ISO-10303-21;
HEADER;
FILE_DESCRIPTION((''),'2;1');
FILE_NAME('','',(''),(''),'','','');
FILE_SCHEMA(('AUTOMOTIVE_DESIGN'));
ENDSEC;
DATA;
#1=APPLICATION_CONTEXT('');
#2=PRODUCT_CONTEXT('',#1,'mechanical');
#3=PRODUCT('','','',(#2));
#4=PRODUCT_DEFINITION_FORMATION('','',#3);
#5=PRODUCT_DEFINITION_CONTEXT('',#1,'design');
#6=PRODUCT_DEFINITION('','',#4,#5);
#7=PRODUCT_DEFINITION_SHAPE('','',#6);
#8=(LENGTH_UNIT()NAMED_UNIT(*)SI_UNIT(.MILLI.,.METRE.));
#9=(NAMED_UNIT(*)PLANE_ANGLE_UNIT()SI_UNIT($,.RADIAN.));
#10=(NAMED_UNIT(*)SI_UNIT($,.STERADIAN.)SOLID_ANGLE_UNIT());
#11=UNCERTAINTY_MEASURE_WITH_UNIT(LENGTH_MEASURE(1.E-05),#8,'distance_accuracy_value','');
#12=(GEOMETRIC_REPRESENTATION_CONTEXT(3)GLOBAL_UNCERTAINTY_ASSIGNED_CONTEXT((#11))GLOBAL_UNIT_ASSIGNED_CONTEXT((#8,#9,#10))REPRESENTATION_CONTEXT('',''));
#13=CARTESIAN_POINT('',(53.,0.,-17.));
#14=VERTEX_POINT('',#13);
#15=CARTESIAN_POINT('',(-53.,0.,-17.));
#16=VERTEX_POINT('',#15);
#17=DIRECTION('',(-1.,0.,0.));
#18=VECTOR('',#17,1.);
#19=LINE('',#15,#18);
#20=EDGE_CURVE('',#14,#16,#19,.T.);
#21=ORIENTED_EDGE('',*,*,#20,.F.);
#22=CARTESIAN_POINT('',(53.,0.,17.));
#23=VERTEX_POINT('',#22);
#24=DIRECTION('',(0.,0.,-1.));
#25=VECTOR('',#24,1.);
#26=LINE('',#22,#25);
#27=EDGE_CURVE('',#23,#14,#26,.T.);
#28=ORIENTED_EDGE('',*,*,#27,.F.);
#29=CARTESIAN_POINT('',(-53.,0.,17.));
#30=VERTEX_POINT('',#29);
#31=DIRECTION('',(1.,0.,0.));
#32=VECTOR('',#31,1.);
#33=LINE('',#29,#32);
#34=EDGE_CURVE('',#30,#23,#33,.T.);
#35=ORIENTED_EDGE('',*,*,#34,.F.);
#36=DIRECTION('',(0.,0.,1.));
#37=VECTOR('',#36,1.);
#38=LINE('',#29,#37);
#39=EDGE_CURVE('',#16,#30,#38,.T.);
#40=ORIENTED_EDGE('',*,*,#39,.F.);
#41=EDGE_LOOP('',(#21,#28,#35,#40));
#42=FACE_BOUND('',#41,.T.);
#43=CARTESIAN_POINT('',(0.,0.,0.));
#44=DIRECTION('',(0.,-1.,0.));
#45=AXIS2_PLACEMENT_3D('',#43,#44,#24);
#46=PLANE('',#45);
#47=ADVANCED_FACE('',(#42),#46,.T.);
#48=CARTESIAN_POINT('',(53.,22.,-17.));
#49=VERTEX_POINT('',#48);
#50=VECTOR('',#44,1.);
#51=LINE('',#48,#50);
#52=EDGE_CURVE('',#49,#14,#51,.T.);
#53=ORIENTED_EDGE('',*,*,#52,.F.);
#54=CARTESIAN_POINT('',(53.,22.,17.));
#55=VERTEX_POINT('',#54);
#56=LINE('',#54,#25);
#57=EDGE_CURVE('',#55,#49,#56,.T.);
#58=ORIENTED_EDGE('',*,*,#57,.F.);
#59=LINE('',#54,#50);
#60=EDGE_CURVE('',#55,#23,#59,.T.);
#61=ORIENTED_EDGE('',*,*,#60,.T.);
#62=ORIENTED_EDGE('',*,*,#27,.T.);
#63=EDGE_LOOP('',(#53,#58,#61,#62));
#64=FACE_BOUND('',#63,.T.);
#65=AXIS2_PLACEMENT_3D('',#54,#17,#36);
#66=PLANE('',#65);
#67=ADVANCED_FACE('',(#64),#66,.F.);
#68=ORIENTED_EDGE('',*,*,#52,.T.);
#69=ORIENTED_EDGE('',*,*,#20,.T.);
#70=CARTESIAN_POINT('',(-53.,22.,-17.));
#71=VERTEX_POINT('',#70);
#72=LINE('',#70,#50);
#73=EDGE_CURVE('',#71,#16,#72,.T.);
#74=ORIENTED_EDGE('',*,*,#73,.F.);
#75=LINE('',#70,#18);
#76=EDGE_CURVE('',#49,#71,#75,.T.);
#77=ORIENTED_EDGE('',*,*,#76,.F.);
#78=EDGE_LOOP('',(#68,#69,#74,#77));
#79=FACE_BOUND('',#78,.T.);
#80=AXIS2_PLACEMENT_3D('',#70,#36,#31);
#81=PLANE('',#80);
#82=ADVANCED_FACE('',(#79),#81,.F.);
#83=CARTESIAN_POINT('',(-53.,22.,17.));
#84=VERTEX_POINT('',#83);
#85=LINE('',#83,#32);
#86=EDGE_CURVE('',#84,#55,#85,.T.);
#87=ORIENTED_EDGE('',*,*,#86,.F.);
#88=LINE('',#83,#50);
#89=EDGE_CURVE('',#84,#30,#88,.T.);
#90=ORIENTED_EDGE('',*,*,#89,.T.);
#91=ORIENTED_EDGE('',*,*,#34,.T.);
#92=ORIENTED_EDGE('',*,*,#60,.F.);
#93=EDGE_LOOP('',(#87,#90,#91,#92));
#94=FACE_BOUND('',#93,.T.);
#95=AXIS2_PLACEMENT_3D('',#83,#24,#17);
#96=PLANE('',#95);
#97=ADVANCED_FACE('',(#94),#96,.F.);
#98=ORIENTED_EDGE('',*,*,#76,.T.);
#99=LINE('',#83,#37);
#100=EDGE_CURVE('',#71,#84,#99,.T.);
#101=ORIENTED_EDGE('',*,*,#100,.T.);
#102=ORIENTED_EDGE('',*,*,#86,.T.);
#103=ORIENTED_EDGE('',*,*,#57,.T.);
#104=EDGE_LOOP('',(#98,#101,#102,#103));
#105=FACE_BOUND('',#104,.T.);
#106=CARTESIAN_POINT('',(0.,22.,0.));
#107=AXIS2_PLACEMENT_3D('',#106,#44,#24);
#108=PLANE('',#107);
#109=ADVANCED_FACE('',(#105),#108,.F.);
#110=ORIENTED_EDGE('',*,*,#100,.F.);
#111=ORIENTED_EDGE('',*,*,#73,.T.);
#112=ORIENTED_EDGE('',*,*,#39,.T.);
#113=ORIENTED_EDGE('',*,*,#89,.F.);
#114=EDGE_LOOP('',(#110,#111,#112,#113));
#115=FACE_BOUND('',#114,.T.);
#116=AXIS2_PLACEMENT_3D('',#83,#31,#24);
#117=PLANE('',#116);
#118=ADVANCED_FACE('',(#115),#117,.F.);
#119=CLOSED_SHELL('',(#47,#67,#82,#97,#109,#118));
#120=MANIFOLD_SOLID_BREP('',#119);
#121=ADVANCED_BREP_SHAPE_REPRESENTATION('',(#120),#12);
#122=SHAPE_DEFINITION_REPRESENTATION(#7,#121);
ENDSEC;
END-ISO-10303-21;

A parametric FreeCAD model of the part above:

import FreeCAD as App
import Part
import Sketcher

V = App.Vector
Q = App.Units.Quantity

doc = App.newDocument("Part")
params = doc.addObject("Spreadsheet::Sheet", "Params")
for row, (alias, value) in enumerate([
    ("sketch1_width", "106 mm"),
    ("sketch1_height", "34 mm"),
    ("pad1_length", "22 mm"),
], start=1):
    params.set(f"A{row}", alias)
    params.set(f"B{row}", "=" + value)
    params.setAlias(f"B{row}", alias)

body = doc.addObject("PartDesign::Body", "Body")

sketch1 = doc.addObject("Sketcher::SketchObject", "Sketch")
body.addObject(sketch1)
sketch1.AttachmentSupport = (doc.XZ_Plane, [""])
sketch1.MapMode = "FlatFace"
sketch1.addGeometry(Part.LineSegment(V(-53, -17, 0), V(-53, 17, 0)), False)
sketch1.addGeometry(Part.LineSegment(V(-53, 17, 0), V(53, 17, 0)), False)
sketch1.addGeometry(Part.LineSegment(V(53, 17, 0), V(53, -17, 0)), False)
sketch1.addGeometry(Part.LineSegment(V(53, -17, 0), V(-53, -17, 0)), False)
sketch1.addConstraint(Sketcher.Constraint("Coincident", 0, 2, 1, 1))
sketch1.addConstraint(Sketcher.Constraint("Coincident", 1, 2, 2, 1))
sketch1.addConstraint(Sketcher.Constraint("Coincident", 2, 2, 3, 1))
sketch1.addConstraint(Sketcher.Constraint("Coincident", 3, 2, 0, 1))
sketch1.addConstraint(Sketcher.Constraint("Vertical", 0))
sketch1.addConstraint(Sketcher.Constraint("Horizontal", 1))
sketch1.addConstraint(Sketcher.Constraint("Vertical", 2))
sketch1.addConstraint(Sketcher.Constraint("Horizontal", 3))
sketch1.addConstraint(Sketcher.Constraint("Symmetric", 0, 2, 2, 2, -1, 1))
sketch1.addConstraint(Sketcher.Constraint("DistanceX", 1, 1, 1, 2, Q("106 mm")))
sketch1.addConstraint(Sketcher.Constraint("DistanceY", 0, 1, 0, 2, Q("34 mm")))
sketch1.setExpression("Constraints[9]", "Params.sketch1_width")
sketch1.setExpression("Constraints[10]", "Params.sketch1_height")
pad1 = doc.addObject("PartDesign::Pad", "Pad")
body.addObject(pad1)
pad1.Profile = sketch1
pad1.setExpression("Length", "Params.pad1_length")
pad1.Reversed = True

doc.recompute()
